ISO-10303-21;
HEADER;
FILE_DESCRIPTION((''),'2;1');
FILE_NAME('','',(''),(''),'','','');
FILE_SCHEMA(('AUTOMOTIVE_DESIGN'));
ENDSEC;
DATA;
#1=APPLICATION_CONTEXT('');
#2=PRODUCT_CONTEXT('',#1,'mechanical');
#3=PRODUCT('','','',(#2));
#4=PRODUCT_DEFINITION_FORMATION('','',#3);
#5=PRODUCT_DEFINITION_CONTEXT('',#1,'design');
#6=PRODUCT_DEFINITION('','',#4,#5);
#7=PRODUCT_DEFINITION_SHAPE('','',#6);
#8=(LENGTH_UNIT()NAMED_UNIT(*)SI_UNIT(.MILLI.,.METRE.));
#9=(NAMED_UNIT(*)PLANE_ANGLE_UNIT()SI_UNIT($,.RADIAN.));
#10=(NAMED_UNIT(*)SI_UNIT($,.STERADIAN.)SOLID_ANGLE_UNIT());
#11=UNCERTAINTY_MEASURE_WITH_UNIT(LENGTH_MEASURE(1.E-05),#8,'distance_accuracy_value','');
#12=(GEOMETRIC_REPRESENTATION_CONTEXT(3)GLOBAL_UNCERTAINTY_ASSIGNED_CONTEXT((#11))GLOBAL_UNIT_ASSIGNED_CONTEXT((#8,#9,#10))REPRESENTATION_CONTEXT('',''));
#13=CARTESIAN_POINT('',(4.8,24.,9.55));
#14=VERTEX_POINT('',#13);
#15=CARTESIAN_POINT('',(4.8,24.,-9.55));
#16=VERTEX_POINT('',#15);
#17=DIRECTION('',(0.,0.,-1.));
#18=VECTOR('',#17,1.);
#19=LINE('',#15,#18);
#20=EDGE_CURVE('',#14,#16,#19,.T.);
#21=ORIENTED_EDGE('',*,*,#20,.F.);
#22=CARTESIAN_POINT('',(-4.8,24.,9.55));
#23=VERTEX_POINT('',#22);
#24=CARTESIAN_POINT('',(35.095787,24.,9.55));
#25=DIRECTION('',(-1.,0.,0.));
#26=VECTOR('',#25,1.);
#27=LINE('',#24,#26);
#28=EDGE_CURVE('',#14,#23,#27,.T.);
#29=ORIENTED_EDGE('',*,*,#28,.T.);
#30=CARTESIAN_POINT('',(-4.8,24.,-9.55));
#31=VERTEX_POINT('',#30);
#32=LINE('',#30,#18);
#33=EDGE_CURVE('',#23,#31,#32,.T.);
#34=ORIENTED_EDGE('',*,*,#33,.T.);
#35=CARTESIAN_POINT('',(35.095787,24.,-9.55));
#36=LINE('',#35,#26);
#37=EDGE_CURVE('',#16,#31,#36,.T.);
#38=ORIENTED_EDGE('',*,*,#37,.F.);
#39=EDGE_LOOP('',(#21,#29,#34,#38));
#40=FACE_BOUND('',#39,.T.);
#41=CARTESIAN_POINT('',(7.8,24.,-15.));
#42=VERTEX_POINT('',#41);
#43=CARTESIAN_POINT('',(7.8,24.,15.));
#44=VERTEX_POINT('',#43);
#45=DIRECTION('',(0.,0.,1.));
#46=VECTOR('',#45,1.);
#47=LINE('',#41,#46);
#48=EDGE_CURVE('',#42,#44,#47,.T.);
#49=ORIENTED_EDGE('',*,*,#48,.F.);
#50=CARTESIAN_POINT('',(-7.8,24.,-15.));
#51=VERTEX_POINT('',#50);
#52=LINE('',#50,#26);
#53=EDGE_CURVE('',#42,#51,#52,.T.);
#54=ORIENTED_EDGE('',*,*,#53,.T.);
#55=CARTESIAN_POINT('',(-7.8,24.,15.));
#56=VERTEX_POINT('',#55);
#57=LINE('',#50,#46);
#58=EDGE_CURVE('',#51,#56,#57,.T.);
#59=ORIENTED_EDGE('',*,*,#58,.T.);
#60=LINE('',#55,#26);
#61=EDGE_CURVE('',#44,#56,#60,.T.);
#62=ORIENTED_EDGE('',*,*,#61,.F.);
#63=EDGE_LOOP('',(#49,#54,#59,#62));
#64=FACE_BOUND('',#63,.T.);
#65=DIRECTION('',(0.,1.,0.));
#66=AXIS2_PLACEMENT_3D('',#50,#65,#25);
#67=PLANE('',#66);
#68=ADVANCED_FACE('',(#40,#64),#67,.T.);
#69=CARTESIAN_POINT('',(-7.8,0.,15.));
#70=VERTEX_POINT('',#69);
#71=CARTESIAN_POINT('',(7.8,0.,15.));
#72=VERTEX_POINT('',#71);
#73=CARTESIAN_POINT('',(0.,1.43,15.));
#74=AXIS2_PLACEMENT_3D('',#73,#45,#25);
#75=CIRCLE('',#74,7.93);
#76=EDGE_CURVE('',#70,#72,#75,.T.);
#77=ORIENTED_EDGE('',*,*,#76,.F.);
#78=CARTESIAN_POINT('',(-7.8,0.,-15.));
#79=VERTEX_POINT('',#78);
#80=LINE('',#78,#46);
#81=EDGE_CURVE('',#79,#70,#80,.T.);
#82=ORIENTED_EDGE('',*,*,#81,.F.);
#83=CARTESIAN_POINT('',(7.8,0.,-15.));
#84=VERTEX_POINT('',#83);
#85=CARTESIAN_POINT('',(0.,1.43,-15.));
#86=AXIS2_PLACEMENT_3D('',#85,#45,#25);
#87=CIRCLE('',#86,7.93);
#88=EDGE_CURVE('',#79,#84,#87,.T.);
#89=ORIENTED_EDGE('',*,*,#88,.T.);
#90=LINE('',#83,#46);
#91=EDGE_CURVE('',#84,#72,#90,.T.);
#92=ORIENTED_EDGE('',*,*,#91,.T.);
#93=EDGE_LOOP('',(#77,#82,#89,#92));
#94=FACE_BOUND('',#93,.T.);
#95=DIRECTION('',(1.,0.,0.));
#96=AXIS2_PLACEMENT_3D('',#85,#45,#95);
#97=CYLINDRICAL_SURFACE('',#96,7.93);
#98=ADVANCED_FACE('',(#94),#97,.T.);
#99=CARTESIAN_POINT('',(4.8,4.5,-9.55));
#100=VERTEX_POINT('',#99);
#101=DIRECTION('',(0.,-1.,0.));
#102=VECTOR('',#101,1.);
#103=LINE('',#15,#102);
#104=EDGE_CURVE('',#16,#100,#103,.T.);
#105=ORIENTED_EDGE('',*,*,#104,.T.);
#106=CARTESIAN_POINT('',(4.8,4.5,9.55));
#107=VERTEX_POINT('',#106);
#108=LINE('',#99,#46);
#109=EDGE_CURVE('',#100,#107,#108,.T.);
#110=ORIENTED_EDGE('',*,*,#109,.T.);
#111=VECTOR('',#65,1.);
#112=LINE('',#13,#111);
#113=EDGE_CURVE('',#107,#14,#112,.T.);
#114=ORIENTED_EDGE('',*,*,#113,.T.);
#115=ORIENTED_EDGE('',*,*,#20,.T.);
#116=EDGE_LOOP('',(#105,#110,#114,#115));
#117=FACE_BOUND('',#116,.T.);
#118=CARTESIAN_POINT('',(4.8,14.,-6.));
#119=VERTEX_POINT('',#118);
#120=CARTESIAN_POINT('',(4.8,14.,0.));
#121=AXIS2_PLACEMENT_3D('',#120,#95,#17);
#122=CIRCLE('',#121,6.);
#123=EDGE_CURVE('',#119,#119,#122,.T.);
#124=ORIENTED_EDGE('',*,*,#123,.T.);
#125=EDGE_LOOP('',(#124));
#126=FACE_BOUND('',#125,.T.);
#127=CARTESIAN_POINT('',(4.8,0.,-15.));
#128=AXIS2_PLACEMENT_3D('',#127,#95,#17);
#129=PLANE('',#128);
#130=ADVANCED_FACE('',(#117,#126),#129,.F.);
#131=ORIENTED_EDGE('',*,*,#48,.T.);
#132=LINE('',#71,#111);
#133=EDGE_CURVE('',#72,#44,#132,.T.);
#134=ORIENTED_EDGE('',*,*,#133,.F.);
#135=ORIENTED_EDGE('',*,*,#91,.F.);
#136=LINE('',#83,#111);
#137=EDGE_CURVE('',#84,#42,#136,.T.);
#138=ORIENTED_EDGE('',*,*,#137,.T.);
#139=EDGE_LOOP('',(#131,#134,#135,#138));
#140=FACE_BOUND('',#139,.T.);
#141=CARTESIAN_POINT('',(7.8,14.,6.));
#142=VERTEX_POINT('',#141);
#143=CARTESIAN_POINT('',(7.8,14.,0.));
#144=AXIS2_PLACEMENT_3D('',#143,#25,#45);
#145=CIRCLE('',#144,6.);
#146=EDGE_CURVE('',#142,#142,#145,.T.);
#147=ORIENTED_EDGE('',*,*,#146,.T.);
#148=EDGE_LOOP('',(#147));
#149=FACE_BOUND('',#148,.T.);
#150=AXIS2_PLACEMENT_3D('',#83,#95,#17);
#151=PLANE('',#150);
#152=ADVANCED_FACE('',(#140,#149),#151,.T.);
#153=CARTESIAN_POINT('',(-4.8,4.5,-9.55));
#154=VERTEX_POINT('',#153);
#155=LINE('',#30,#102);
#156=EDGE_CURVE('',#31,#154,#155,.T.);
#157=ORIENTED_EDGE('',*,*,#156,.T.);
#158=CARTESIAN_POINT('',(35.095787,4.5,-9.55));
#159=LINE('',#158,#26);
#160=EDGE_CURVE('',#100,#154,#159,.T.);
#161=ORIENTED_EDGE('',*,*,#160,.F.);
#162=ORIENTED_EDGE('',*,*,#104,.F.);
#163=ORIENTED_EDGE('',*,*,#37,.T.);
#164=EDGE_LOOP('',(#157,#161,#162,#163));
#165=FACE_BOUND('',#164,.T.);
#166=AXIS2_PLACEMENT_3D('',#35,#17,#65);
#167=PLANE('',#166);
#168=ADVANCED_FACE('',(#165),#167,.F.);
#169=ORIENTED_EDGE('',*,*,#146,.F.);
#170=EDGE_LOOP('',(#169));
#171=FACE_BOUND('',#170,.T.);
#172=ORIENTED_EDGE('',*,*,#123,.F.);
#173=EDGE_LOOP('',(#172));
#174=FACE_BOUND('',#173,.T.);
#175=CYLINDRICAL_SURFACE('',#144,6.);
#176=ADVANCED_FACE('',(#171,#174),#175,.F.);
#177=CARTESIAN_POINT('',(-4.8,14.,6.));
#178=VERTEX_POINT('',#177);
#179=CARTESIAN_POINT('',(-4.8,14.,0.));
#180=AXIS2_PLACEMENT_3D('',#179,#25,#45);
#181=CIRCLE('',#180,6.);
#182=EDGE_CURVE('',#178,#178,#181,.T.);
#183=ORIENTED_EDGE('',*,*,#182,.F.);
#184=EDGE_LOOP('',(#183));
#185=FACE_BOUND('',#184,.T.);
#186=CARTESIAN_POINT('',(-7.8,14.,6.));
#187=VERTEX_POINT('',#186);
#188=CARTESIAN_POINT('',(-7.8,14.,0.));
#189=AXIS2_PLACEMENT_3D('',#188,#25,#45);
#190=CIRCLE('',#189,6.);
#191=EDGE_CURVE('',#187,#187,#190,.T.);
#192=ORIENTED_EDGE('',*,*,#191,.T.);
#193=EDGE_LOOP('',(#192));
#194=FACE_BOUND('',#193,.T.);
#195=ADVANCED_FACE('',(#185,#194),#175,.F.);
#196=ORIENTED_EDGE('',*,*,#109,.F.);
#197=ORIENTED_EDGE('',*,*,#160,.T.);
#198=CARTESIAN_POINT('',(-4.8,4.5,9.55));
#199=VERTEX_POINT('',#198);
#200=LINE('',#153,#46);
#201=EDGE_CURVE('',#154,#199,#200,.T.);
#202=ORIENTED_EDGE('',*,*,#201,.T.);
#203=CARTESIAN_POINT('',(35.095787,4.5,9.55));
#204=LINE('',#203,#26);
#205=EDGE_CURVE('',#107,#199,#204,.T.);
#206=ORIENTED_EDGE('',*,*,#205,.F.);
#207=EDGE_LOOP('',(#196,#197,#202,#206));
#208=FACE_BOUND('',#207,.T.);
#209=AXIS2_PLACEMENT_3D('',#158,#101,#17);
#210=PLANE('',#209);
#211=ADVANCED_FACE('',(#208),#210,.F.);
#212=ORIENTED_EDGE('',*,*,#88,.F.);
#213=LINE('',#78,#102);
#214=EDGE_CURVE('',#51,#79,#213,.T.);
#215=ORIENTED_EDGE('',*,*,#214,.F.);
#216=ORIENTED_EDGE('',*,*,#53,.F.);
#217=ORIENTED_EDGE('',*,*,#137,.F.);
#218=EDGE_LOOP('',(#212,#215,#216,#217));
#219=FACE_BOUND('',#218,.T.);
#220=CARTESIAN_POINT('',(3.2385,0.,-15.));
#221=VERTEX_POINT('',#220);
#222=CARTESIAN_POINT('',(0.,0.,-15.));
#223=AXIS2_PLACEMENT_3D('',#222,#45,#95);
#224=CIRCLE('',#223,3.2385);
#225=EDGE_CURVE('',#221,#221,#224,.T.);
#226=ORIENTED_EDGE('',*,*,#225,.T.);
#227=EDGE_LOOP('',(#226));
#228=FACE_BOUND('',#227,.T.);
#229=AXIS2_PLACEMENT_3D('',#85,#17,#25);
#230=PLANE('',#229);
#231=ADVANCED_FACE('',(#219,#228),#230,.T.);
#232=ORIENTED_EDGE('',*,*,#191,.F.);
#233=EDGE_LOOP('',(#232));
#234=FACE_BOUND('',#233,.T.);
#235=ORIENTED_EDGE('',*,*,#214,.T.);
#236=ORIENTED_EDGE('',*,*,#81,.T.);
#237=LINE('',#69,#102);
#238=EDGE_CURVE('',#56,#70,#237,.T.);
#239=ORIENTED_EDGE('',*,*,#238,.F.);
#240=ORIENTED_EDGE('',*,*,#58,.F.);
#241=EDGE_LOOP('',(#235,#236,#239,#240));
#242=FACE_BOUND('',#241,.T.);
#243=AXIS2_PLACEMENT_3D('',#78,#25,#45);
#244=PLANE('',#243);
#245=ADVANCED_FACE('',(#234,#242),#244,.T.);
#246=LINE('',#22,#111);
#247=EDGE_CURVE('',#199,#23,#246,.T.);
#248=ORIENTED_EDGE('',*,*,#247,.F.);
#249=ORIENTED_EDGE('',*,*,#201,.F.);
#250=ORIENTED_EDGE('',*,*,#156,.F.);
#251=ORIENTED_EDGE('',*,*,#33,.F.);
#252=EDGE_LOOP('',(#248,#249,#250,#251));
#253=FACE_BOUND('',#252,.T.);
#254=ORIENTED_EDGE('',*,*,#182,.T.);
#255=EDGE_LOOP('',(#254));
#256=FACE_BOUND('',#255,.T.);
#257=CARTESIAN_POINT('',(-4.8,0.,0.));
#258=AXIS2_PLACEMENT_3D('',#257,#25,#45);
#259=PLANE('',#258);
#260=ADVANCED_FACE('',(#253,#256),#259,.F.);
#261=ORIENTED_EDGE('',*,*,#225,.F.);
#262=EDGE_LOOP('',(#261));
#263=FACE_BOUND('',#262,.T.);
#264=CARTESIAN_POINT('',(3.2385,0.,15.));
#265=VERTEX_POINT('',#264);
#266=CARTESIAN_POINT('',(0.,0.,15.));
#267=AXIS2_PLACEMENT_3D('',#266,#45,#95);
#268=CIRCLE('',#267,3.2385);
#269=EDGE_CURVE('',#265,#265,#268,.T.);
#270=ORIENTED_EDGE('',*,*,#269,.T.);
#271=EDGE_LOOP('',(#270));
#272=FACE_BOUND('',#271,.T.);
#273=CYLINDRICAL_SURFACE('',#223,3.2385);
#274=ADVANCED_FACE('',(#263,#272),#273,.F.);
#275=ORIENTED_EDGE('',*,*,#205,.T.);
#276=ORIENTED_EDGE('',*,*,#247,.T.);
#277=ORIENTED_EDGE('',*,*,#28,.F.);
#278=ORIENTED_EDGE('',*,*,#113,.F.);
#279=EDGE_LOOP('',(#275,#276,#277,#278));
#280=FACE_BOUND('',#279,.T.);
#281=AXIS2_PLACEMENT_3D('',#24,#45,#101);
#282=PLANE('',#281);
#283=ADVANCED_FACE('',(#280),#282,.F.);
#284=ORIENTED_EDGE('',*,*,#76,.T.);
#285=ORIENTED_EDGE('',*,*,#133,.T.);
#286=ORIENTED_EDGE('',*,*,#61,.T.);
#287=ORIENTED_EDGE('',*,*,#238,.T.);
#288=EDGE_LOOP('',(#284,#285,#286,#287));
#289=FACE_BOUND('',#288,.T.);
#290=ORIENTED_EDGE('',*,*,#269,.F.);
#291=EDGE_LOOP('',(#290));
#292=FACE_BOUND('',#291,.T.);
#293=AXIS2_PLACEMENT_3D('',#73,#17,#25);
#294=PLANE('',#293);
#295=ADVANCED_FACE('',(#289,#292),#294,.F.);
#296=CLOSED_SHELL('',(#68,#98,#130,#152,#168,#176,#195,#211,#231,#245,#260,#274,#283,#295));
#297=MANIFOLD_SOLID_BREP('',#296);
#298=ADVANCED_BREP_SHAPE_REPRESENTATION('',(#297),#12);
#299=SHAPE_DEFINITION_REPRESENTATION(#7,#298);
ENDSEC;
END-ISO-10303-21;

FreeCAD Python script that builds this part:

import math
import FreeCAD as App
import Part
import Sketcher

V = App.Vector
Q = App.Units.Quantity


def add_polygon(sketch, points):
    """Adds a closed chain of lines whose ends are joined by coincident constraints."""
    first, n = sketch.GeometryCount, len(points)
    for a, b in zip(points, points[1:] + points[:1]):
        sketch.addGeometry(Part.LineSegment(App.Vector(*a, 0), App.Vector(*b, 0)), False)
    for i in range(n):
        sketch.addConstraint(Sketcher.Constraint("Coincident", first + i, 2, first + (i + 1) % n, 1))

doc = App.newDocument("Part")
body = doc.addObject("PartDesign::Body", "Body")

# Sketch on XY plane
sketch1 = body.newObject("Sketcher::SketchObject", "Sketch")
sketch1.AttachmentSupport = (doc.getObject("XY_Plane"), [""])
sketch1.MapMode = "FlatFace"
sketch1.addGeometry(Part.LineSegment(V(-7.8, 24, 0), V(-7.8, 0, 0)), False)
sketch1.addGeometry(Part.ArcOfCircle(Part.Circle(V(0, 1.43, 0), V(0, 0, 1), 7.93), math.radians(-169.611142), math.radians(-10.388858)), False)
sketch1.addGeometry(Part.LineSegment(V(7.8, 0, 0), V(7.8, 24, 0)), False)
sketch1.addGeometry(Part.LineSegment(V(7.8, 24, 0), V(-7.8, 24, 0)), False)
sketch1.addGeometry(Part.Circle(V(0, 0, 0), V(0, 0, 1), 3.2385), False)
sketch1.addConstraint(Sketcher.Constraint("Coincident", 0, 2, 1, 1))
sketch1.addConstraint(Sketcher.Constraint("Coincident", 1, 2, 2, 1))
sketch1.addConstraint(Sketcher.Constraint("Coincident", 2, 2, 3, 1))
sketch1.addConstraint(Sketcher.Constraint("Coincident", 3, 2, 0, 1))
sketch1.addConstraint(Sketcher.Constraint("Vertical", 0))
sketch1.addConstraint(Sketcher.Constraint("Vertical", 2))
sketch1.addConstraint(Sketcher.Constraint("Horizontal", 3))
sketch1.addConstraint(Sketcher.Constraint("Coincident", 4, 3, -1, 1))
sketch1.addConstraint(Sketcher.Constraint("Symmetric", 0, 2, 1, 2, -1, 1))
sketch1.addConstraint(Sketcher.Constraint("PointOnObject", 1, 3, -2))
sketch1.addConstraint(Sketcher.Constraint("DistanceY", 0, 2, 0, 1, Q("24 mm")))
sketch1.addConstraint(Sketcher.Constraint("Radius", 1, Q("7.93 mm")))
sketch1.addConstraint(Sketcher.Constraint("Diameter", 4, Q("6.477 mm")))
sketch1.addConstraint(Sketcher.Constraint("DistanceX", 3, 2, 3, 1, Q("15.6 mm")))
pad1 = body.newObject("PartDesign::Pad", "Pad")
pad1.Profile = sketch1
pad1.Type = "TwoLengths"
pad1.Length = 15
pad1.Length2 = 15

# Sketch on YZ plane
sketch2 = body.newObject("Sketcher::SketchObject", "Sketch001")
sketch2.AttachmentSupport = (doc.getObject("YZ_Plane"), [""])
sketch2.MapMode = "FlatFace"
sketch2.AttachmentOffset = App.Placement(V(0, 0, -4.8), App.Rotation())
add_polygon(sketch2, [(24, -9.55), (4.5, -9.55), (4.5, 9.55), (24, 9.55)])  # lines 0-3
sketch2.addConstraint(Sketcher.Constraint("Horizontal", 0))
sketch2.addConstraint(Sketcher.Constraint("Vertical", 1))
sketch2.addConstraint(Sketcher.Constraint("Horizontal", 2))
sketch2.addConstraint(Sketcher.Constraint("Vertical", 3))
sketch2.addConstraint(Sketcher.Constraint("DistanceX", 0, 2, 0, 1, Q("19.5 mm")))
sketch2.addConstraint(Sketcher.Constraint("DistanceY", 1, 1, 1, 2, Q("19.1 mm")))
sketch2.addConstraint(Sketcher.Constraint("DistanceX", -1, 1, 2, 2, Q("24 mm")))
sketch2.addConstraint(Sketcher.Constraint("DistanceY", 0, 2, -1, 1, Q("9.55 mm")))
pocket1 = body.newObject("PartDesign::Pocket", "Pocket")
pocket1.Profile = sketch2
pocket1.Length = 9.6
pocket1.Reversed = True

# Sketch on YZ plane
sketch3 = body.newObject("Sketcher::SketchObject", "Sketch002")
sketch3.AttachmentSupport = (doc.getObject("YZ_Plane"), [""])
sketch3.MapMode = "FlatFace"
sketch3.AttachmentOffset = App.Placement(V(0, 0, -7.8), App.Rotation())
sketch3.addGeometry(Part.Circle(V(14, 0, 0), V(0, 0, 1), 6), False)
sketch3.addConstraint(Sketcher.Constraint("PointOnObject", 0, 3, -1))
sketch3.addConstraint(Sketcher.Constraint("Diameter", 0, Q("12 mm")))
sketch3.addConstraint(Sketcher.Constraint("DistanceX", -1, 1, 0, 3, Q("14 mm")))
pocket2 = body.newObject("PartDesign::Pocket", "Pocket001")
pocket2.Profile = sketch3
pocket2.Type = "ThroughAll"
pocket2.Midplane = True

doc.recompute()
